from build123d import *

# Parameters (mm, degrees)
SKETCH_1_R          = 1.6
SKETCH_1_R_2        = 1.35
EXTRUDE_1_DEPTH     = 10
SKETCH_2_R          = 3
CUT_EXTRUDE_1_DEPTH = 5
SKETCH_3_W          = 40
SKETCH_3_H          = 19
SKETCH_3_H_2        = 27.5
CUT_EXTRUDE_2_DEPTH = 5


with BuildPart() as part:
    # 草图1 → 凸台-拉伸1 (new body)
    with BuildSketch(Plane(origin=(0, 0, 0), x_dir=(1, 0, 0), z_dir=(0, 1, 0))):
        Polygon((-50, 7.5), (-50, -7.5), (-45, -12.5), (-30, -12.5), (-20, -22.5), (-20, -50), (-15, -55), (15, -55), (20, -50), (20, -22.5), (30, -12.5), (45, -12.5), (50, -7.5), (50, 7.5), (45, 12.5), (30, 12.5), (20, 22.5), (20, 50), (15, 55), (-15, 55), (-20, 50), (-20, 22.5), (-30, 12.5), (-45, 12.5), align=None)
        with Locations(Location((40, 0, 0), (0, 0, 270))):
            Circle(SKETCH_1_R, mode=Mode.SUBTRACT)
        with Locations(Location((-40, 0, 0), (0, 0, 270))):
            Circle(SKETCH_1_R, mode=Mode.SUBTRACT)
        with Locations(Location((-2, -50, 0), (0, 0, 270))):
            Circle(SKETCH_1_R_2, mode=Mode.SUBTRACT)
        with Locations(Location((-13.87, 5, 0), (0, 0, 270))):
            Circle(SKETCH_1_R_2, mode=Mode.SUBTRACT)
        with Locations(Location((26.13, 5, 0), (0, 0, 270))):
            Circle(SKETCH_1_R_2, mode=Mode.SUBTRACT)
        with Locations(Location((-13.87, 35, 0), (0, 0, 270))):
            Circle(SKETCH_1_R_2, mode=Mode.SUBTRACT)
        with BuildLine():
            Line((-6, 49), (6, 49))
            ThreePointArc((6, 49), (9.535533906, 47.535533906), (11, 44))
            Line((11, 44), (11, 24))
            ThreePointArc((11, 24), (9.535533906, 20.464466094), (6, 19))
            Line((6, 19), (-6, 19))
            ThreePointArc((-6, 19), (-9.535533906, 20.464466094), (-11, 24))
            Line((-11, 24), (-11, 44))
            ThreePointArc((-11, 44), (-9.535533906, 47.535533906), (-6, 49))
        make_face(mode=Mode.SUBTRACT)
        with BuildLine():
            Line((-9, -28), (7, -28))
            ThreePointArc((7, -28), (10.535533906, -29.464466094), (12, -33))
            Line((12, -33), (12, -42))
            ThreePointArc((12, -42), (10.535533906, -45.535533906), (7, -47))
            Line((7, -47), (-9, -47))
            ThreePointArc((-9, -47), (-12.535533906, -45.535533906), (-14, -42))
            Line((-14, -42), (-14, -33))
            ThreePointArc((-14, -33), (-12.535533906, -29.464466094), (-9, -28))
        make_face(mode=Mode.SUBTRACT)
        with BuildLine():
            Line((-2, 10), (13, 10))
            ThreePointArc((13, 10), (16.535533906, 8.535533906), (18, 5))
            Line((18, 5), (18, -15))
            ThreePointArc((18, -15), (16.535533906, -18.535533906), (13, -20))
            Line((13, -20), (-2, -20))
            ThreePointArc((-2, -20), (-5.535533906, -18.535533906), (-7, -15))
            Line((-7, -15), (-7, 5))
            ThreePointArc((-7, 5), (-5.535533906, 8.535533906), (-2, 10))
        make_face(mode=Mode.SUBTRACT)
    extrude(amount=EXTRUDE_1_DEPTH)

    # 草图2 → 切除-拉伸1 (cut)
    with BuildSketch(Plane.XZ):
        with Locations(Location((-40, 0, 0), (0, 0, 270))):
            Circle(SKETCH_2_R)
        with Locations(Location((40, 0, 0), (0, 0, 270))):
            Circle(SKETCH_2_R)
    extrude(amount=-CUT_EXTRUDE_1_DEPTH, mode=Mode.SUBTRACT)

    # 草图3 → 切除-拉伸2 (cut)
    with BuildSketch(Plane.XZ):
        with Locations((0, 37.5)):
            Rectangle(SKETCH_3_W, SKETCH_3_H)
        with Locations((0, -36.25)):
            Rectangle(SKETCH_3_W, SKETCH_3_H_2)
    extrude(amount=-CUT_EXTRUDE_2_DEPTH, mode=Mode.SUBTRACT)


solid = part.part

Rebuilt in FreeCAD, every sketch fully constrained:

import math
import FreeCAD as App
import Part
import Sketcher

V = App.Vector


def add_polygon(sketch, points):
    """Adds a closed chain of lines whose ends are joined by coincident constraints."""
    first, n = sketch.GeometryCount, len(points)
    for a, b in zip(points, points[1:] + points[:1]):
        sketch.addGeometry(Part.LineSegment(App.Vector(*a, 0), App.Vector(*b, 0)), False)
    for i in range(n):
        sketch.addConstraint(Sketcher.Constraint("Coincident", first + i, 2, first + (i + 1) % n, 1))

doc = App.newDocument("Part")
params = doc.addObject("Spreadsheet::Sheet", "Params")
for row, (alias, value) in enumerate([
    ("sketch1_radius", "5 mm"),
    ("sketch1_diameter", "2.7 mm"),
    ("sketch1_diameter2", "3.2 mm"),
    ("sketch1_width", "15 mm"),
    ("sketch1_width2", "30 mm"),
    ("pad1_length", "10 mm"),
    ("sketch2_diameter", "6 mm"),
    ("pocket1_length", "5 mm"),
    ("sketch3_width", "40 mm"),
    ("sketch3_height", "19 mm"),
    ("sketch3_height2", "27.5 mm"),
    ("pocket2_length", "5 mm"),
], start=1):
    params.set(f"A{row}", alias)
    params.set(f"B{row}", "=" + value)
    params.setAlias(f"B{row}", alias)

body = doc.addObject("PartDesign::Body", "Body")

# Sketch on XZ plane
sketch1 = body.newObject("Sketcher::SketchObject", "Sketch")
sketch1.AttachmentSupport = (doc.getObject("XZ_Plane"), [""])
sketch1.MapMode = "FlatFace"
add_polygon(sketch1, [(-50, -7.5), (-50, 7.5), (-45, 12.5), (-30, 12.5), (-20, 22.5), (-20, 50), (-15, 55), (15, 55), (20, 50), (20, 22.5), (30, 12.5), (45, 12.5), (50, 7.5), (50, -7.5), (45, -12.5), (30, -12.5), (20, -22.5), (20, -50), (15, -55), (-15, -55), (-20, -50), (-20, -22.5), (-30, -12.5), (-45, -12.5)])  # lines 0-23
sketch1.addGeometry(Part.Circle(V(-2, 50, 0), V(0, 0, 1), 1.4), False)  # 24
sketch1.addGeometry(Part.ArcOfCircle(Part.Circle(V(-9, 33, 0), V(0, 0, 1), 5), math.radians(180), math.radians(270)), False)  # 25
sketch1.addGeometry(Part.LineSegment(V(-9, 28, 0), V(7, 28, 0)), False)  # 26
sketch1.addGeometry(Part.ArcOfCircle(Part.Circle(V(7, 33, 0), V(0, 0, 1), 5), math.radians(-90), math.radians(0)), False)  # 27
sketch1.addGeometry(Part.LineSegment(V(12, 33, 0), V(12, 42, 0)), False)  # 28
sketch1.addGeometry(Part.ArcOfCircle(Part.Circle(V(7, 42, 0), V(0, 0, 1), 5), math.radians(0), math.radians(90)), False)  # 29
sketch1.addGeometry(Part.LineSegment(V(7, 47, 0), V(-9, 47, 0)), False)  # 30
sketch1.addGeometry(Part.ArcOfCircle(Part.Circle(V(-9, 42, 0), V(0, 0, 1), 5), math.radians(90), math.radians(180)), False)  # 31
sketch1.addGeometry(Part.LineSegment(V(-14, 42, 0), V(-14, 33, 0)), False)  # 32
sketch1.addGeometry(Part.ArcOfCircle(Part.Circle(V(-2, -5, 0), V(0, 0, 1), 5), math.radians(180), math.radians(270)), False)  # 33
sketch1.addGeometry(Part.LineSegment(V(-2, -10, 0), V(13, -10, 0)), False)  # 34
sketch1.addGeometry(Part.ArcOfCircle(Part.Circle(V(13, -5, 0), V(0, 0, 1), 5), math.radians(-90), math.radians(0)), False)  # 35
sketch1.addGeometry(Part.LineSegment(V(18, -5, 0), V(18, 15, 0)), False)  # 36
sketch1.addGeometry(Part.ArcOfCircle(Part.Circle(V(13, 15, 0), V(0, 0, 1), 5), math.radians(0), math.radians(90)), False)  # 37
sketch1.addGeometry(Part.LineSegment(V(13, 20, 0), V(-2, 20, 0)), False)  # 38
sketch1.addGeometry(Part.ArcOfCircle(Part.Circle(V(-2, 15, 0), V(0, 0, 1), 5), math.radians(90), math.radians(180)), False)  # 39
sketch1.addGeometry(Part.LineSegment(V(-7, 15, 0), V(-7, -5, 0)), False)  # 40
sketch1.addGeometry(Part.Circle(V(-40, 0, 0), V(0, 0, 1), 1.6), False)  # 41
sketch1.addGeometry(Part.Circle(V(-13.9, -5, 0), V(0, 0, 1), 1.4), False)  # 42
sketch1.addGeometry(Part.Circle(V(-13.9, -35, 0), V(0, 0, 1), 1.4), False)  # 43
sketch1.addGeometry(Part.Circle(V(26.1, -5, 0), V(0, 0, 1), 1.4), False)  # 44
sketch1.addGeometry(Part.Circle(V(40, 0, 0), V(0, 0, 1), 1.6), False)  # 45
sketch1.addGeometry(Part.ArcOfCircle(Part.Circle(V(-6, -44, 0), V(0, 0, 1), 5), math.radians(180), math.radians(270)), False)  # 46
sketch1.addGeometry(Part.LineSegment(V(-6, -49, 0), V(6, -49, 0)), False)  # 47
sketch1.addGeometry(Part.ArcOfCircle(Part.Circle(V(6, -44, 0), V(0, 0, 1), 5), math.radians(-90), math.radians(0)), False)  # 48
sketch1.addGeometry(Part.LineSegment(V(11, -44, 0), V(11, -24, 0)), False)  # 49
sketch1.addGeometry(Part.ArcOfCircle(Part.Circle(V(6, -24, 0), V(0, 0, 1), 5), math.radians(0), math.radians(90)), False)  # 50
sketch1.addGeometry(Part.LineSegment(V(6, -19, 0), V(-6, -19, 0)), False)  # 51
sketch1.addGeometry(Part.ArcOfCircle(Part.Circle(V(-6, -24, 0), V(0, 0, 1), 5), math.radians(90), math.radians(180)), False)  # 52
sketch1.addGeometry(Part.LineSegment(V(-11, -24, 0), V(-11, -44, 0)), False)  # 53
sketch1.addConstraint(Sketcher.Constraint("Tangent", 25, 2, 26, 1))
sketch1.addConstraint(Sketcher.Constraint("Tangent", 26, 2, 27, 1))
sketch1.addConstraint(Sketcher.Constraint("Tangent", 27, 2, 28, 1))
sketch1.addConstraint(Sketcher.Constraint("Tangent", 28, 2, 29, 1))
sketch1.addConstraint(Sketcher.Constraint("Tangent", 29, 2, 30, 1))
sketch1.addConstraint(Sketcher.Constraint("Tangent", 30, 2, 31, 1))
sketch1.addConstraint(Sketcher.Constraint("Tangent", 31, 2, 32, 1))
sketch1.addConstraint(Sketcher.Constraint("Tangent", 32, 2, 25, 1))
sketch1.addConstraint(Sketcher.Constraint("Tangent", 33, 2, 34, 1))
sketch1.addConstraint(Sketcher.Constraint("Tangent", 34, 2, 35, 1))
sketch1.addConstraint(Sketcher.Constraint("Tangent", 35, 2, 36, 1))
sketch1.addConstraint(Sketcher.Constraint("Tangent", 36, 2, 37, 1))
sketch1.addConstraint(Sketcher.Constraint("Tangent", 37, 2, 38, 1))
sketch1.addConstraint(Sketcher.Constraint("Tangent", 38, 2, 39, 1))
sketch1.addConstraint(Sketcher.Constraint("Tangent", 39, 2, 40, 1))
sketch1.addConstraint(Sketcher.Constraint("Tangent", 40, 2, 33, 1))
sketch1.addConstraint(Sketcher.Constraint("Tangent", 46, 2, 47, 1))
sketch1.addConstraint(Sketcher.Constraint("Tangent", 47, 2, 48, 1))
sketch1.addConstraint(Sketcher.Constraint("Tangent", 48, 2, 49, 1))
sketch1.addConstraint(Sketcher.Constraint("Tangent", 49, 2, 50, 1))
sketch1.addConstraint(Sketcher.Constraint("Tangent", 50, 2, 51, 1))
sketch1.addConstraint(Sketcher.Constraint("Tangent", 51, 2, 52, 1))
sketch1.addConstraint(Sketcher.Constraint("Tangent", 52, 2, 53, 1))
sketch1.addConstraint(Sketcher.Constraint("Tangent", 53, 2, 46, 1))
sketch1.addConstraint(Sketcher.Constraint("Vertical", 0))
sketch1.addConstraint(Sketcher.Constraint("Horizontal", 2))
sketch1.addConstraint(Sketcher.Constraint("Vertical", 4))
sketch1.addConstraint(Sketcher.Constraint("Horizontal", 6))
sketch1.addConstraint(Sketcher.Constraint("Vertical", 8))
sketch1.addConstraint(Sketcher.Constraint("Horizontal", 10))
sketch1.addConstraint(Sketcher.Constraint("Vertical", 12))
sketch1.addConstraint(Sketcher.Constraint("Horizontal", 14))
sketch1.addConstraint(Sketcher.Constraint("Vertical", 16))
sketch1.addConstraint(Sketcher.Constraint("Horizontal", 18))
sketch1.addConstraint(Sketcher.Constraint("Vertical", 20))
sketch1.addConstraint(Sketcher.Constraint("Horizontal", 22))
sketch1.addConstraint(Sketcher.Constraint("Horizontal", 26))
sketch1.addConstraint(Sketcher.Constraint("Vertical", 28))
sketch1.addConstraint(Sketcher.Constraint("Horizontal", 30))
sketch1.addConstraint(Sketcher.Constraint("Vertical", 32))
sketch1.addConstraint(Sketcher.Constraint("Horizontal", 34))
sketch1.addConstraint(Sketcher.Constraint("Vertical", 36))
sketch1.addConstraint(Sketcher.Constraint("Horizontal", 38))
sketch1.addConstraint(Sketcher.Constraint("Vertical", 40))
sketch1.addConstraint(Sketcher.Constraint("Horizontal", 47))
sketch1.addConstraint(Sketcher.Constraint("Vertical", 49))
sketch1.addConstraint(Sketcher.Constraint("Horizontal", 51))
sketch1.addConstraint(Sketcher.Constraint("Vertical", 53))
sketch1.addConstraint(Sketcher.Constraint("Equal", 25, 27))
sketch1.addConstraint(Sketcher.Constraint("Equal", 27, 29))
sketch1.addConstraint(Sketcher.Constraint("Equal", 29, 31))
sketch1.addConstraint(Sketcher.Constraint("Equal", 31, 33))
sketch1.addConstraint(Sketcher.Constraint("Equal", 33, 35))
sketch1.addConstraint(Sketcher.Constraint("Equal", 35, 37))
sketch1.addConstraint(Sketcher.Constraint("Equal", 37, 39))
sketch1.addConstraint(Sketcher.Constraint("Equal", 24, 42))
sketch1.addConstraint(Sketcher.Constraint("Equal", 42, 43))
sketch1.addConstraint(Sketcher.Constraint("Equal", 43, 44))
sketch1.addConstraint(Sketcher.Constraint("Equal", 41, 45))
sketch1.addConstraint(Sketcher.Constraint("Equal", 39, 46))
sketch1.addConstraint(Sketcher.Constraint("Equal", 46, 48))
sketch1.addConstraint(Sketcher.Constraint("Equal", 48, 50))
sketch1.addConstraint(Sketcher.Constraint("Equal", 50, 52))
sketch1.addConstraint(Sketcher.Constraint("Symmetric", 41, 3, 45, 3, -1, 1))
sketch1.addConstraint(Sketcher.Constraint("Symmetric", 0, 2, 12, 2, -1, 1))
sketch1.addConstraint(Sketcher.Constraint("Symmetric", 1, 2, 13, 2, -1, 1))
sketch1.addConstraint(Sketcher.Constraint("Symmetric", 3, 2, 15, 2, -1, 1))
sketch1.addConstraint(Sketcher.Constraint("Symmetric", 5, 2, 17, 2, -1, 1))
sketch1.addConstraint(Sketcher.Constraint("Symmetric", 7, 2, 19, 2, -1, 1))
sketch1.addConstraint(Sketcher.Constraint("Symmetric", 9, 2, 21, 2, -1, 1))
sketch1.addConstraint(Sketcher.Constraint("Symmetric", 4, 2, 7, 2, -2))
sketch1.addConstraint(Sketcher.Constraint("Symmetric", 2, 2, 9, 2, -2))
sketch1.addConstraint(Sketcher.Constraint("PointOnObject", 41, 3, -1))
sketch1.addConstraint(Sketcher.Constraint("Parallel", 1, 3))
sketch1.addConstraint(Sketcher.Constraint("Parallel", 3, 5))
sketch1.addConstraint(Sketcher.Constraint("Perpendicular", 5, 7))
sketch1.addConstraint(Sketcher.Constraint("Parallel", 7, 9))
sketch1.addConstraint(Sketcher.Constraint("Parallel", 9, 11))
sketch1.addConstraint(Sketcher.Constraint("Parallel", 13, 15))
sketch1.addConstraint(Sketcher.Constraint("Parallel", 15, 17))
sketch1.addConstraint(Sketcher.Constraint("Perpendicular", 17, 19))
sketch1.addConstraint(Sketcher.Constraint("Parallel", 19, 21))
sketch1.addConstraint(Sketcher.Constraint("Parallel", 21, 23))
sketch1.addConstraint(Sketcher.Constraint("Horizontal", 35, 3, 42, 3))
sketch1.addConstraint(Sketcher.Constraint("Horizontal", 42, 3, 44, 3))
sketch1.addConstraint(Sketcher.Constraint("Horizontal", 24, 3, 4, 2))
sketch1.addConstraint(Sketcher.Constraint("Horizontal", 3, 2, 8, 2))
sketch1.addConstraint(Sketcher.Constraint("Horizontal", 0, 2, 11, 2))
sketch1.addConstraint(Sketcher.Constraint("Horizontal", 12, 2, 23, 2))
sketch1.addConstraint(Sketcher.Constraint("Vertical", 24, 3, 33, 3))
sketch1.addConstraint(Sketcher.Constraint("Vertical", 42, 3, 43, 3))
sketch1.addConstraint(Sketcher.Constraint("Equal", 22, 34))
sketch1.addConstraint(Sketcher.Constraint("Equal", 38, 0))
sketch1.addConstraint(Sketcher.Constraint("Equal", 40, 49))
sketch1.addConstraint(Sketcher.Constraint("Equal", 1, 5))
sketch1.addConstraint(Sketcher.Constraint("Radius", 25, 5.0))
sketch1.addConstraint(Sketcher.Constraint("Diameter", 24, 2.7))
sketch1.addConstraint(Sketcher.Constraint("Diameter", 41, 3.2))
sketch1.addConstraint(Sketcher.Constraint("DistanceX", 2, 1, 2, 2, 15.0))
sketch1.addConstraint(Sketcher.Constraint("DistanceX", 6, 1, 6, 2, 30.0))
sketch1.addConstraint(Sketcher.Constraint("DistanceX", 26, 1, 26, 2, 16.0))
sketch1.addConstraint(Sketcher.Constraint("DistanceX", 47, 1, 47, 2, 12.0))
sketch1.addConstraint(Sketcher.Constraint("DistanceY", 28, 1, 28, 2, 9.0))
sketch1.addConstraint(Sketcher.Constraint("DistanceY", 36, 1, 36, 2, 20.0))
sketch1.addConstraint(Sketcher.Constraint("DistanceY", 4, 1, 4, 2, 27.5))
sketch1.addConstraint(Sketcher.Constraint("DistanceX", 24, 3, -1, 1, 2.0))
sketch1.addConstraint(Sketcher.Constraint("DistanceY", -1, 1, 24, 3, 50.0))
sketch1.addConstraint(Sketcher.Constraint("DistanceX", 25, 3, -1, 1, 9.0))
sketch1.addConstraint(Sketcher.Constraint("DistanceY", -1, 1, 25, 3, 33.0))
sketch1.addConstraint(Sketcher.Constraint("DistanceY", 33, 3, -1, 1, 5.0))
sketch1.addConstraint(Sketcher.Constraint("DistanceX", 41, 3, -1, 1, 40.0))
sketch1.addConstraint(Sketcher.Constraint("DistanceY", 43, 3, -1, 1, 35.0))
sketch1.addConstraint(Sketcher.Constraint("DistanceX", 46, 3, -1, 1, 6.0))
sketch1.addConstraint(Sketcher.Constraint("DistanceY", 46, 3, -1, 1, 44.0))
sketch1.addConstraint(Sketcher.Constraint("DistanceX", 0, 2, -1, 1, 50.0))
sketch1.addConstraint(Sketcher.Constraint("DistanceX", 42, 3, -1, 1, 13.87))
sketch1.addConstraint(Sketcher.Constraint("DistanceX", -1, 1, 44, 3, 26.13))
sketch1.setExpression("Constraints[119]", "Params.sketch1_radius")
sketch1.setExpression("Constraints[120]", "Params.sketch1_diameter")
sketch1.setExpression("Constraints[121]", "Params.sketch1_diameter2")
sketch1.setExpression("Constraints[122]", "Params.sketch1_width")
sketch1.setExpression("Constraints[123]", "Params.sketch1_width2")
pad1 = body.newObject("PartDesign::Pad", "Pad")
pad1.Profile = sketch1
pad1.setExpression("Length", "Params.pad1_length")
pad1.Reversed = True

# Sketch on XZ plane
sketch2 = body.newObject("Sketcher::SketchObject", "Sketch001")
sketch2.AttachmentSupport = (doc.getObject("XZ_Plane"), [""])
sketch2.MapMode = "FlatFace"
sketch2.addGeometry(Part.Circle(V(-40, 0, 0), V(0, 0, 1), 3), False)
sketch2.addGeometry(Part.Circle(V(40, 0, 0), V(0, 0, 1), 3), False)
sketch2.addConstraint(Sketcher.Constraint("Equal", 0, 1))
sketch2.addConstraint(Sketcher.Constraint("Symmetric", 0, 3, 1, 3, -1, 1))
sketch2.addConstraint(Sketcher.Constraint("PointOnObject", 0, 3, -1))
sketch2.addConstraint(Sketcher.Constraint("Diameter", 0, 6.0))
sketch2.addConstraint(Sketcher.Constraint("DistanceX", 0, 3, -1, 1, 40.0))
sketch2.setExpression("Constraints[3]", "Params.sketch2_diameter")
pocket1 = body.newObject("PartDesign::Pocket", "Pocket")
pocket1.Profile = sketch2
pocket1.setExpression("Length", "Params.pocket1_length")

# Sketch on XZ plane
sketch3 = body.newObject("Sketcher::SketchObject", "Sketch002")
sketch3.AttachmentSupport = (doc.getObject("XZ_Plane"), [""])
sketch3.MapMode = "FlatFace"
add_polygon(sketch3, [(-20, 47), (-20, 28), (20, 28), (20, 47)])  # lines 0-3
add_polygon(sketch3, [(-20, -22), (-20, -50), (20, -50), (20, -22)])  # lines 4-7
sketch3.addConstraint(Sketcher.Constraint("Vertical", 0))
sketch3.addConstraint(Sketcher.Constraint("Horizontal", 1))
sketch3.addConstraint(Sketcher.Constraint("Vertical", 2))
sketch3.addConstraint(Sketcher.Constraint("Horizontal", 3))
sketch3.addConstraint(Sketcher.Constraint("Vertical", 4))
sketch3.addConstraint(Sketcher.Constraint("Horizontal", 5))
sketch3.addConstraint(Sketcher.Constraint("Vertical", 6))
sketch3.addConstraint(Sketcher.Constraint("Horizontal", 7))
sketch3.addConstraint(Sketcher.Constraint("Vertical", 3, 2, 4, 2))
sketch3.addConstraint(Sketcher.Constraint("Vertical", 2, 2, 5, 2))
sketch3.addConstraint(Sketcher.Constraint("DistanceX", 1, 1, 1, 2, 40.0))
sketch3.addConstraint(Sketcher.Constraint("DistanceY", 0, 2, 0, 1, 19.0))
sketch3.addConstraint(Sketcher.Constraint("DistanceY", 4, 2, 4, 1, 27.5))
sketch3.addConstraint(Sketcher.Constraint("DistanceX", 0, 2, -1, 1, 20.0))
sketch3.addConstraint(Sketcher.Constraint("DistanceY", -1, 1, 0, 2, 28.0))
sketch3.addConstraint(Sketcher.Constraint("DistanceY", 4, 2, -1, 1, 50.0))
sketch3.setExpression("Constraints[18]", "Params.sketch3_width")
sketch3.setExpression("Constraints[19]", "Params.sketch3_height")
sketch3.setExpression("Constraints[20]", "Params.sketch3_height2")
pocket2 = body.newObject("PartDesign::Pocket", "Pocket001")
pocket2.Profile = sketch3
pocket2.setExpression("Length", "Params.pocket2_length")

doc.recompute()
